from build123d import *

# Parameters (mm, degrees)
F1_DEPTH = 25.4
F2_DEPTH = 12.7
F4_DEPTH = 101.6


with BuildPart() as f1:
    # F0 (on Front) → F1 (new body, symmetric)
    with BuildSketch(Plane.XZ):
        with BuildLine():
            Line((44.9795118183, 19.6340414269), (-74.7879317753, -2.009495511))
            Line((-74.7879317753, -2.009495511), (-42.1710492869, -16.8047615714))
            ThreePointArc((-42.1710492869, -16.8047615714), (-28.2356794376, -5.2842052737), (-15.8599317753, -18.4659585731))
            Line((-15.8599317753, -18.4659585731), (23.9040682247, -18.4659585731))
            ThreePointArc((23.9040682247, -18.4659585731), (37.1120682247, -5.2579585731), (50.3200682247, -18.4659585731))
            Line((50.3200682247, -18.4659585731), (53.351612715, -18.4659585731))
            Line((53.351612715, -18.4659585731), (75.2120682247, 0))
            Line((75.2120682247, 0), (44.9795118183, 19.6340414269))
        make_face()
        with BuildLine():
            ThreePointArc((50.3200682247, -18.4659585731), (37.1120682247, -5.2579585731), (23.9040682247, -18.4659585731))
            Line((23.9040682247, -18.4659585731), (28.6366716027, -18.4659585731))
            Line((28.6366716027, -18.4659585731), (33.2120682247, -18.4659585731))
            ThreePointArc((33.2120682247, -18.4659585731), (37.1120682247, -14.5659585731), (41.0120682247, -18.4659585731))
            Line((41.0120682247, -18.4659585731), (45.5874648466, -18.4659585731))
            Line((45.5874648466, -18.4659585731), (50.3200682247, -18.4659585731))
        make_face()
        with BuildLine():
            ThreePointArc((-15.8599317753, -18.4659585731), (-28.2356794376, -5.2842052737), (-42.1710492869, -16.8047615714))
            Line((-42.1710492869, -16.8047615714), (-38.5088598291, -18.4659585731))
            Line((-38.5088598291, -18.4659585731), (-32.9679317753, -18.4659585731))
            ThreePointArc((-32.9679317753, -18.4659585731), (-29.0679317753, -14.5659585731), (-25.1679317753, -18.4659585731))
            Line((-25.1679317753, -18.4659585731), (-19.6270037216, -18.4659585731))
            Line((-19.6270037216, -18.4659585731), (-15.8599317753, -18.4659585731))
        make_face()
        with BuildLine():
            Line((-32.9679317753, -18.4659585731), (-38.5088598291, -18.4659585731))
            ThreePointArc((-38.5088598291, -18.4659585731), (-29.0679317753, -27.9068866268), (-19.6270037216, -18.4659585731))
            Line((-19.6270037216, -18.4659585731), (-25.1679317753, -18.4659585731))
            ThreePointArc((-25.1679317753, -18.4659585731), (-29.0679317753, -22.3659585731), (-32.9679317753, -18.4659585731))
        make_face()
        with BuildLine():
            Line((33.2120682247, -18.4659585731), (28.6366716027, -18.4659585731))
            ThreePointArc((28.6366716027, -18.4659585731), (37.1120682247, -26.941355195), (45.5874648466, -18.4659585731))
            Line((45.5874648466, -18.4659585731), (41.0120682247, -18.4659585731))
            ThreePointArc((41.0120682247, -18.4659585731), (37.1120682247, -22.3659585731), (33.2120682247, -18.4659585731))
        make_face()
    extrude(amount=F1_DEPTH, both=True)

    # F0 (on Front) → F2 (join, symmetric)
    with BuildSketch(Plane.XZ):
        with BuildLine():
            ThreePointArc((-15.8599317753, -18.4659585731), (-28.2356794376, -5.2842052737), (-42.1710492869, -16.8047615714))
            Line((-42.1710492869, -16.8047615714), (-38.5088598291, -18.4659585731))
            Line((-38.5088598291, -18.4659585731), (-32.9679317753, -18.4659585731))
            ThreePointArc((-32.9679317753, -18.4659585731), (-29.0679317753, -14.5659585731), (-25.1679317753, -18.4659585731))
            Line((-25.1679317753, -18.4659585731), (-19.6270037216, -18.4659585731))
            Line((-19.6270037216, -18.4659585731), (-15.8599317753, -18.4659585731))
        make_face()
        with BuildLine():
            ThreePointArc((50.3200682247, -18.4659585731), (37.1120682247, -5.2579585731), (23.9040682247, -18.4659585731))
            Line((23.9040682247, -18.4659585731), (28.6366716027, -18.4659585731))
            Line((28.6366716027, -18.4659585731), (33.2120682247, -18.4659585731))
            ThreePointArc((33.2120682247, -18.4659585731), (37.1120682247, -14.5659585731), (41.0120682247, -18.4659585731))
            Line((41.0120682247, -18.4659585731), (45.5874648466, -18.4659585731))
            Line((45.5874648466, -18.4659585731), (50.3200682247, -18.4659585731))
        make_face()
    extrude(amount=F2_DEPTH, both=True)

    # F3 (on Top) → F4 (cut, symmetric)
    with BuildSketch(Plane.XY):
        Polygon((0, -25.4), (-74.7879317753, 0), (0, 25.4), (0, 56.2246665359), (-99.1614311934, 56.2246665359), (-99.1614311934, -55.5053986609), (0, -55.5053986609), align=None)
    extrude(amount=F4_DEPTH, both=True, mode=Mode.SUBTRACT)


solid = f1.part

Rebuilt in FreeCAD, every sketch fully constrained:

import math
import FreeCAD as App
import Part
import Sketcher

V = App.Vector
Q = App.Units.Quantity

doc = App.newDocument("Part")
body = doc.addObject("PartDesign::Body", "Body")

sketch1 = doc.addObject("Sketcher::SketchObject", "Sketch")
body.addObject(sketch1)
sketch1.AttachmentSupport = (doc.XZ_Plane, [""])
sketch1.MapMode = "FlatFace"
sketch1.addGeometry(Part.LineSegment(V(44.979512, 19.634041, 0), V(-74.787932, -2.009496, 0)), False)
sketch1.addGeometry(Part.LineSegment(V(-74.787932, -2.009496, 0), V(-42.171049, -16.804762, 0)), False)
sketch1.addGeometry(Part.LineSegment(V(-42.171049, -16.804762, 0), V(-38.50886, -18.465959, 0)), False)
sketch1.addGeometry(Part.ArcOfCircle(Part.Circle(V(-29.067932, -18.465959, 0), V(0, 0, 1), 9.440928), math.radians(180), math.radians(360)), False)
sketch1.addGeometry(Part.LineSegment(V(-19.627004, -18.465959, 0), V(28.636672, -18.465959, 0)), False)
sketch1.addGeometry(Part.ArcOfCircle(Part.Circle(V(37.112068, -18.465959, 0), V(0, 0, 1), 8.475397), math.radians(180), math.radians(360)), False)
sketch1.addGeometry(Part.LineSegment(V(45.587465, -18.465959, 0), V(53.351613, -18.465959, 0)), False)
sketch1.addGeometry(Part.LineSegment(V(53.351613, -18.465959, 0), V(75.212068, 0, 0)), False)
sketch1.addGeometry(Part.LineSegment(V(75.212068, 0, 0), V(44.979512, 19.634041, 0)), False)
sketch1.addGeometry(Part.Circle(V(37.112068, -18.465959, 0), V(0, 0, 1), 3.9), False)
sketch1.addGeometry(Part.Circle(V(-29.067932, -18.465959, 0), V(0, 0, 1), 3.9), False)
sketch1.addConstraint(Sketcher.Constraint("Coincident", 0, 2, 1, 1))
sketch1.addConstraint(Sketcher.Constraint("Coincident", 1, 2, 2, 1))
sketch1.addConstraint(Sketcher.Constraint("Coincident", 2, 2, 3, 1))
sketch1.addConstraint(Sketcher.Constraint("Coincident", 3, 2, 4, 1))
sketch1.addConstraint(Sketcher.Constraint("Coincident", 4, 2, 5, 1))
sketch1.addConstraint(Sketcher.Constraint("Coincident", 5, 2, 6, 1))
sketch1.addConstraint(Sketcher.Constraint("Coincident", 6, 2, 7, 1))
sketch1.addConstraint(Sketcher.Constraint("Coincident", 7, 2, 8, 1))
sketch1.addConstraint(Sketcher.Constraint("Coincident", 8, 2, 0, 1))
sketch1.addConstraint(Sketcher.Constraint("Horizontal", 4))
sketch1.addConstraint(Sketcher.Constraint("Horizontal", 6))
sketch1.addConstraint(Sketcher.Constraint("Coincident", 9, 3, 5, 3))
sketch1.addConstraint(Sketcher.Constraint("Coincident", 10, 3, 3, 3))
sketch1.addConstraint(Sketcher.Constraint("Equal", 9, 10))
sketch1.addConstraint(Sketcher.Constraint("PointOnObject", 7, 2, -1))
sketch1.addConstraint(Sketcher.Constraint("Parallel", 1, 2))
sketch1.addConstraint(Sketcher.Constraint("Horizontal", 3, 3, 5, 3))
sketch1.addConstraint(Sketcher.Constraint("Horizontal", 10, 3, 2, 2))
sketch1.addConstraint(Sketcher.Constraint("Horizontal", 2, 2, 3, 2))
sketch1.addConstraint(Sketcher.Constraint("Horizontal", 4, 2, 5, 2))
sketch1.addConstraint(Sketcher.Constraint("DistanceX", 0, 2, 3, 3, Q("1.8 in")))
sketch1.addConstraint(Sketcher.Constraint("DistanceX", 5, 3, 7, 2, Q("1.5 in")))
sketch1.addConstraint(Sketcher.Constraint("DistanceY", 5, 2, 8, 2, Q("1.5 in")))
sketch1.addConstraint(Sketcher.Constraint("Diameter", 9, Q("7.8 mm")))
sketch1.addConstraint(Sketcher.Constraint("Radius", 3, Q("9.440928 mm")))
sketch1.addConstraint(Sketcher.Constraint("Radius", 5, Q("8.475397 mm")))
sketch1.addConstraint(Sketcher.Constraint("DistanceX", 3, 3, 5, 3, Q("66.18 mm")))
sketch1.addConstraint(Sketcher.Constraint("DistanceX", 8, 2, 6, 2, Q("8.372101 mm")))
sketch1.addConstraint(Sketcher.Constraint("Distance", 1, Q("35.815652 mm")))
sketch1.addConstraint(Sketcher.Constraint("Distance", 8, Q("36.048621 mm")))
sketch1.addConstraint(Sketcher.Constraint("DistanceX", 6, 1, 6, 2, Q("7.764148 mm")))
sketch1.addConstraint(Sketcher.Constraint("DistanceX", 3, 3, -1, 1, Q("29.067932 mm")))
sketch1.addConstraint(Sketcher.Constraint("DistanceX", 1, 2, -1, 1, Q("42.171049 mm")))
pad1 = doc.addObject("PartDesign::Pad", "Pad")
body.addObject(pad1)
pad1.Profile = sketch1
pad1.Length = Q("2 in")
pad1.Midplane = True

sketch2 = doc.addObject("Sketcher::SketchObject", "Sketch001")
body.addObject(sketch2)
sketch2.AttachmentSupport = (doc.XZ_Plane, [""])
sketch2.MapMode = "FlatFace"
sketch2.addGeometry(Part.ArcOfCircle(Part.Circle(V(-29.067932, -18.465959, 0), V(0, 0, 1), 13.208), math.radians(0), math.radians(172.774658)), False)
sketch2.addGeometry(Part.LineSegment(V(-42.171049, -16.804762, 0), V(-38.50886, -18.465959, 0)), False)
sketch2.addGeometry(Part.LineSegment(V(-38.50886, -18.465959, 0), V(-32.967932, -18.465959, 0)), False)
sketch2.addGeometry(Part.ArcOfCircle(Part.Circle(V(-29.067932, -18.465959, 0), V(0, 0, 1), 3.9), math.radians(0), math.radians(180)), False)
sketch2.addGeometry(Part.LineSegment(V(-25.167932, -18.465959, 0), V(-15.859932, -18.465959, 0)), False)
sketch2.addGeometry(Part.ArcOfCircle(Part.Circle(V(37.112068, -18.465959, 0), V(0, 0, 1), 13.208), math.radians(0), math.radians(180)), False)
sketch2.addGeometry(Part.LineSegment(V(23.904068, -18.465959, 0), V(33.212068, -18.465959, 0)), False)
sketch2.addGeometry(Part.ArcOfCircle(Part.Circle(V(37.112068, -18.465959, 0), V(0, 0, 1), 3.9), math.radians(0), math.radians(180)), False)
sketch2.addGeometry(Part.LineSegment(V(41.012068, -18.465959, 0), V(50.320068, -18.465959, 0)), False)
sketch2.addConstraint(Sketcher.Constraint("Coincident", 0, 2, 1, 1))
sketch2.addConstraint(Sketcher.Constraint("Coincident", 1, 2, 2, 1))
sketch2.addConstraint(Sketcher.Constraint("Coincident", 2, 2, 3, 2))
sketch2.addConstraint(Sketcher.Constraint("Coincident", 3, 1, 4, 1))
sketch2.addConstraint(Sketcher.Constraint("Coincident", 4, 2, 0, 1))
sketch2.addConstraint(Sketcher.Constraint("Coincident", 5, 2, 6, 1))
sketch2.addConstraint(Sketcher.Constraint("Coincident", 6, 2, 7, 2))
sketch2.addConstraint(Sketcher.Constraint("Coincident", 7, 1, 8, 1))
sketch2.addConstraint(Sketcher.Constraint("Coincident", 8, 2, 5, 1))
sketch2.addConstraint(Sketcher.Constraint("Horizontal", 2))
sketch2.addConstraint(Sketcher.Constraint("Horizontal", 4))
sketch2.addConstraint(Sketcher.Constraint("Horizontal", 6))
sketch2.addConstraint(Sketcher.Constraint("Horizontal", 8))
sketch2.addConstraint(Sketcher.Constraint("Coincident", 3, 3, 0, 3))
sketch2.addConstraint(Sketcher.Constraint("Coincident", 7, 3, 5, 3))
sketch2.addConstraint(Sketcher.Constraint("Equal", 0, 5))
sketch2.addConstraint(Sketcher.Constraint("Equal", 3, 7))
sketch2.addConstraint(Sketcher.Constraint("Horizontal", 3, 3, 5, 3))
sketch2.addConstraint(Sketcher.Constraint("Horizontal", 7, 3, 1, 2))
sketch2.addConstraint(Sketcher.Constraint("Horizontal", 2, 2, 3, 1))
sketch2.addConstraint(Sketcher.Constraint("Horizontal", 4, 2, 5, 2))
sketch2.addConstraint(Sketcher.Constraint("Horizontal", 6, 2, 7, 1))
sketch2.addConstraint(Sketcher.Constraint("Radius", 0, Q("0.52 in")))
sketch2.addConstraint(Sketcher.Constraint("Radius", 3, Q("3.9 mm")))
sketch2.addConstraint(Sketcher.Constraint("DistanceX", 2, 1, 2, 2, Q("5.540928 mm")))
sketch2.addConstraint(Sketcher.Constraint("DistanceX", 0, 3, 5, 3, Q("66.18 mm")))
sketch2.addConstraint(Sketcher.Constraint("DistanceX", 0, 3, -1, 1, Q("29.067932 mm")))
sketch2.addConstraint(Sketcher.Constraint("DistanceY", 0, 3, -1, 1, Q("18.465959 mm")))
sketch2.addConstraint(Sketcher.Constraint("DistanceX", 0, 2, -1, 1, Q("42.171049 mm")))
pad2 = doc.addObject("PartDesign::Pad", "Pad001")
body.addObject(pad2)
pad2.Profile = sketch2
pad2.Length = Q("1 in")
pad2.Midplane = True

sketch3 = doc.addObject("Sketcher::SketchObject", "Sketch002")
body.addObject(sketch3)
sketch3.AttachmentSupport = (doc.XY_Plane, [""])
sketch3.MapMode = "FlatFace"
sketch3.addGeometry(Part.LineSegment(V(0, -25.4, 0), V(-74.787932, 0, 0)), False)
sketch3.addGeometry(Part.LineSegment(V(-74.787932, 0, 0), V(0, 25.4, 0)), False)
sketch3.addGeometry(Part.LineSegment(V(0, 25.4, 0), V(0, 56.224667, 0)), False)
sketch3.addGeometry(Part.LineSegment(V(0, 56.224667, 0), V(-99.161431, 56.224667, 0)), False)
sketch3.addGeometry(Part.LineSegment(V(-99.161431, 56.224667, 0), V(-99.161431, -55.505399, 0)), False)
sketch3.addGeometry(Part.LineSegment(V(-99.161431, -55.505399, 0), V(0, -55.505399, 0)), False)
sketch3.addGeometry(Part.LineSegment(V(0, -55.505399, 0), V(0, -25.4, 0)), False)
sketch3.addConstraint(Sketcher.Constraint("Coincident", 0, 2, 1, 1))
sketch3.addConstraint(Sketcher.Constraint("Coincident", 1, 2, 2, 1))
sketch3.addConstraint(Sketcher.Constraint("Coincident", 2, 2, 3, 1))
sketch3.addConstraint(Sketcher.Constraint("Coincident", 3, 2, 4, 1))
sketch3.addConstraint(Sketcher.Constraint("Coincident", 4, 2, 5, 1))
sketch3.addConstraint(Sketcher.Constraint("Coincident", 5, 2, 6, 1))
sketch3.addConstraint(Sketcher.Constraint("Coincident", 6, 2, 0, 1))
sketch3.addConstraint(Sketcher.Constraint("Vertical", 2))
sketch3.addConstraint(Sketcher.Constraint("Horizontal", 3))
sketch3.addConstraint(Sketcher.Constraint("Vertical", 4))
sketch3.addConstraint(Sketcher.Constraint("Horizontal", 5))
sketch3.addConstraint(Sketcher.Constraint("Vertical", 6))
sketch3.addConstraint(Sketcher.Constraint("Symmetric", 1, 2, 6, 2, -1, 1))
sketch3.addConstraint(Sketcher.Constraint("PointOnObject", 0, 2, -1))
sketch3.addConstraint(Sketcher.Constraint("PointOnObject", 1, 2, -2))
sketch3.addConstraint(Sketcher.Constraint("DistanceY", -1, 1, 1, 2, Q("1 in")))
sketch3.addConstraint(Sketcher.Constraint("DistanceY", 6, 1, 6, 2, Q("30.105399 mm")))
sketch3.addConstraint(Sketcher.Constraint("DistanceX", 3, 2, 3, 1, Q("99.161431 mm")))
sketch3.addConstraint(Sketcher.Constraint("DistanceX", 3, 2, 0, 2, Q("24.373499 mm")))
sketch3.addConstraint(Sketcher.Constraint("DistanceY", 2, 1, 2, 2, Q("30.824667 mm")))
pocket1 = doc.addObject("PartDesign::Pocket", "Pocket")
body.addObject(pocket1)
pocket1.Profile = sketch3
pocket1.Length = Q("8 in")
pocket1.Midplane = True

doc.recompute()
